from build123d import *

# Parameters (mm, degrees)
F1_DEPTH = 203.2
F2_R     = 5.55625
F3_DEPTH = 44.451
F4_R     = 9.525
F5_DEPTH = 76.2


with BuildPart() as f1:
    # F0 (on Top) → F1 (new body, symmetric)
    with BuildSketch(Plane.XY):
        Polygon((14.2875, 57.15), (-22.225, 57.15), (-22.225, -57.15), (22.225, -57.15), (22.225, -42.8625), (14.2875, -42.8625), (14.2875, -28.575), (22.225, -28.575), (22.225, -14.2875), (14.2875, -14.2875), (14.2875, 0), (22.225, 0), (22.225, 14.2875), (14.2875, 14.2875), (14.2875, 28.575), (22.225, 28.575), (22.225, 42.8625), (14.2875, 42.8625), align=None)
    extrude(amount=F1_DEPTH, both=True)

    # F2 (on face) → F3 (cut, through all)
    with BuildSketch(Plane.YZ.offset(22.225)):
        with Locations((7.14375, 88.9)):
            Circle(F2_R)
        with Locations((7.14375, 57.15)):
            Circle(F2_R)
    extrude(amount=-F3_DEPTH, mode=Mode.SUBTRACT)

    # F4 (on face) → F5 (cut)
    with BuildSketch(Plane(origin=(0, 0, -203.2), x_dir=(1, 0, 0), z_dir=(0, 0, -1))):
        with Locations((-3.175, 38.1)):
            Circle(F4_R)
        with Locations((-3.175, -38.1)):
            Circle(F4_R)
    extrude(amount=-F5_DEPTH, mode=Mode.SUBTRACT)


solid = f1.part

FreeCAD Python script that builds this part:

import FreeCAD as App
import Part
import Sketcher
Q = App.Units.Quantity


def add_polygon(sketch, points):
    """Adds a closed chain of lines whose ends are joined by coincident constraints."""
    first, n = sketch.GeometryCount, len(points)
    for a, b in zip(points, points[1:] + points[:1]):
        sketch.addGeometry(Part.LineSegment(App.Vector(*a, 0), App.Vector(*b, 0)), False)
    for i in range(n):
        sketch.addConstraint(Sketcher.Constraint("Coincident", first + i, 2, first + (i + 1) % n, 1))

doc = App.newDocument("Part")
body = doc.addObject("PartDesign::Body", "Body")

sketch1 = body.newObject("Sketcher::SketchObject", "Sketch")
sketch1.AttachmentSupport = (doc.getObject("XY_Plane"), [""])
sketch1.MapMode = "FlatFace"
add_polygon(sketch1, [(14.2875, 57.15), (-22.225, 57.15), (-22.225, -57.15), (22.225, -57.15), (22.225, -42.8625), (14.2875, -42.8625), (14.2875, -28.575), (22.225, -28.575), (22.225, -14.2875), (14.2875, -14.2875), (14.2875, 0), (22.225, 0), (22.225, 14.2875), (14.2875, 14.2875), (14.2875, 28.575), (22.225, 28.575), (22.225, 42.8625), (14.2875, 42.8625)])
sketch1.addConstraint([
    Sketcher.Constraint("Horizontal", 0),
    Sketcher.Constraint("Vertical", 1),
    Sketcher.Constraint("Horizontal", 2),
    Sketcher.Constraint("Vertical", 3),
    Sketcher.Constraint("Horizontal", 4),
    Sketcher.Constraint("Vertical", 5),
    Sketcher.Constraint("Horizontal", 6),
    Sketcher.Constraint("Vertical", 7),
    Sketcher.Constraint("Horizontal", 8),
    Sketcher.Constraint("Vertical", 9),
    Sketcher.Constraint("Horizontal", 10),
    Sketcher.Constraint("Vertical", 11),
    Sketcher.Constraint("Horizontal", 12),
    Sketcher.Constraint("Vertical", 13),
    Sketcher.Constraint("Horizontal", 14),
    Sketcher.Constraint("Vertical", 15),
    Sketcher.Constraint("Horizontal", 16),
    Sketcher.Constraint("Vertical", 17),
    Sketcher.Constraint("Symmetric", 0, 2, 2, 2, -1, 1),
    Sketcher.Constraint("Symmetric", 7, 2, 11, 2, -1),
    Sketcher.Constraint("Symmetric", 5, 2, 13, 2, -1),
    Sketcher.Constraint("Symmetric", 3, 2, 15, 2, -1),
    Sketcher.Constraint("PointOnObject", 9, 2, -1),
    Sketcher.Constraint("Vertical", 3, 2, 6, 2),
    Sketcher.Constraint("Vertical", 5, 2, 8, 2),
    Sketcher.Constraint("Vertical", 13, 2, 16, 2),
    Sketcher.Constraint("Equal", 3, 5),
    Sketcher.Constraint("Equal", 5, 7),
    Sketcher.Constraint("Equal", 7, 9),
    Sketcher.Constraint("DistanceY", 1, 2, 1, 1, Q("4.5 in")),
    Sketcher.Constraint("DistanceX", 2, 1, 2, 2, Q("1.75 in")),
    Sketcher.Constraint("DistanceX", 0, 2, 0, 1, Q("1.4375 in")),
])
pad1 = body.newObject("PartDesign::Pad", "Pad")
pad1.Profile = sketch1
pad1.Length = Q("16 in")
pad1.Midplane = True

sketch2 = body.newObject("Sketcher::SketchObject", "Sketch001")
sketch2.AttachmentSupport = (doc.getObject("YZ_Plane"), [""])
sketch2.MapMode = "FlatFace"
sketch2.AttachmentOffset = App.Placement(App.Vector(0, 0, 0.875 * 25.4), App.Rotation())
sketch2.addGeometry([
    Part.Circle(App.Vector(7.14375, 88.9, 0), App.Vector(0, 0, 1), 5.55625),
    Part.Circle(App.Vector(7.14375, 57.15, 0), App.Vector(0, 0, 1), 5.55625),
], False)
sketch2.addConstraint([
    Sketcher.Constraint("Equal", 0, 1),
    Sketcher.Constraint("Vertical", 0, 3, 1, 3),
    Sketcher.Constraint("Diameter", 0, Q("0.4375 in")),
    Sketcher.Constraint("DistanceY", -1, 1, 0, 3, Q("3.5 in")),
    Sketcher.Constraint("DistanceY", -1, 1, 1, 3, Q("2.25 in")),
    Sketcher.Constraint("DistanceX", -1, 1, 0, 3, Q("0.28125 in")),
])
pocket1 = body.newObject("PartDesign::Pocket", "Pocket")
pocket1.Profile = sketch2
pocket1.Type = "ThroughAll"

sketch3 = body.newObject("Sketcher::SketchObject", "Sketch002")
sketch3.AttachmentSupport = (doc.getObject("XY_Plane"), [""])
sketch3.MapMode = "FlatFace"
sketch3.AttachmentOffset = App.Placement(App.Vector(0, 0, -8 * 25.4), App.Rotation())
sketch3.addGeometry([
    Part.Circle(App.Vector(-3.175, -38.1, 0), App.Vector(0, 0, 1), 9.525),
    Part.Circle(App.Vector(-3.175, 38.1, 0), App.Vector(0, 0, 1), 9.525),
], False)
sketch3.addConstraint([
    Sketcher.Constraint("Equal", 0, 1),
    Sketcher.Constraint("Symmetric", 0, 3, 1, 3, -1),
    Sketcher.Constraint("Diameter", 0, Q("0.75 in")),
    Sketcher.Constraint("DistanceY", 0, 3, 1, 3, Q("3 in")),
    Sketcher.Constraint("DistanceX", 0, 3, -1, 1, Q("0.125 in")),
])
pocket2 = body.newObject("PartDesign::Pocket", "Pocket001")
pocket2.Profile = sketch3
pocket2.Length = Q("3 in")
pocket2.Reversed = True

doc.recompute()
